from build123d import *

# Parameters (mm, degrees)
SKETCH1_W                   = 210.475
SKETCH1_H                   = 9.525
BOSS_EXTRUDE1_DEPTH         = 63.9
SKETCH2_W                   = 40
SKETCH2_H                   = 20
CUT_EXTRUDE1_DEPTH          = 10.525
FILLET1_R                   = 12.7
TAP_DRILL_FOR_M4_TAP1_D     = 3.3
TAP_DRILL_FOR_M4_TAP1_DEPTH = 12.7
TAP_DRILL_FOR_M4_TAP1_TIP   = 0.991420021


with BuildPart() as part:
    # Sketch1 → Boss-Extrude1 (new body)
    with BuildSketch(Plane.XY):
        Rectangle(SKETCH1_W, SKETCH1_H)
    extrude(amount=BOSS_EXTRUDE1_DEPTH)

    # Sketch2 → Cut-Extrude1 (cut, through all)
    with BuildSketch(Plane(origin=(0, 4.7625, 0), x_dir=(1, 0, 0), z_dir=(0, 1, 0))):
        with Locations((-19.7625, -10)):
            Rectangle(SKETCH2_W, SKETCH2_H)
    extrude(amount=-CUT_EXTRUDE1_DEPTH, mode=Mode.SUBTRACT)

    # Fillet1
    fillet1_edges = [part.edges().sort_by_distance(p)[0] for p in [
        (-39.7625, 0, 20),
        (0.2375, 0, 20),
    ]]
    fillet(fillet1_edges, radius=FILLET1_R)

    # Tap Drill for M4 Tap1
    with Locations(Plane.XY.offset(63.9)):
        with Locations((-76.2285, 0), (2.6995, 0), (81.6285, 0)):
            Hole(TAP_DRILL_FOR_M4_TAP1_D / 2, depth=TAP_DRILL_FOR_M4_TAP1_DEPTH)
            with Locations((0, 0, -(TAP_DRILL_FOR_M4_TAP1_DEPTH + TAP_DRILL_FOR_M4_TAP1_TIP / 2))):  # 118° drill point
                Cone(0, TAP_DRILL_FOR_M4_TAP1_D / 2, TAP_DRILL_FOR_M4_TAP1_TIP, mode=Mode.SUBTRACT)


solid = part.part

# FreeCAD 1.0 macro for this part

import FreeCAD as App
import Part
import Sketcher
from FreeCAD import Vector


def edges_at(feature, points):
    """Names of the edges that pass closest to the given points."""
    edges = feature.Shape.Edges
    near = lambda p: min(range(len(edges)), key=lambda i: edges[i].distToShape(Part.Vertex(*p))[0])
    return sorted({f"Edge{near(p) + 1}" for p in points})

doc = App.newDocument("Part")
body = doc.addObject("PartDesign::Body", "Body")

sketch1 = body.newObject("Sketcher::SketchObject", "Sketch")
sketch1.AttachmentSupport = (doc.getObject("XY_Plane"), [""])
sketch1.MapMode = "FlatFace"
sketch1.addGeometry(Part.LineSegment(Vector(-105, 5, 0), Vector(-105, -5, 0)), False)
sketch1.addGeometry(Part.LineSegment(Vector(-105, -5, 0), Vector(105, -5, 0)), False)
sketch1.addGeometry(Part.LineSegment(Vector(105, -5, 0), Vector(105, 5, 0)), False)
sketch1.addGeometry(Part.LineSegment(Vector(105, 5, 0), Vector(-105, 5, 0)), False)
sketch1.addConstraint(Sketcher.Constraint("Coincident", 0, 2, 1, 1))
sketch1.addConstraint(Sketcher.Constraint("Coincident", 1, 2, 2, 1))
sketch1.addConstraint(Sketcher.Constraint("Coincident", 2, 2, 3, 1))
sketch1.addConstraint(Sketcher.Constraint("Coincident", 3, 2, 0, 1))
sketch1.addConstraint(Sketcher.Constraint("Vertical", 0))
sketch1.addConstraint(Sketcher.Constraint("Horizontal", 1))
sketch1.addConstraint(Sketcher.Constraint("Vertical", 2))
sketch1.addConstraint(Sketcher.Constraint("Horizontal", 3))
sketch1.addConstraint(Sketcher.Constraint("Symmetric", 0, 2, 2, 2, -1, 1))
sketch1.addConstraint(Sketcher.Constraint("DistanceX", 1, 1, 1, 2, 210.475))
sketch1.addConstraint(Sketcher.Constraint("DistanceY", 0, 2, 0, 1, 9.525))
pad1 = body.newObject("PartDesign::Pad", "Pad")
pad1.Profile = sketch1
pad1.Length = 63.9

sketch2 = body.newObject("Sketcher::SketchObject", "Sketch001")
sketch2.AttachmentSupport = (doc.getObject("XZ_Plane"), [""])
sketch2.MapMode = "FlatFace"
sketch2.AttachmentOffset = App.Placement(Vector(0, 0, -4.7625), App.Rotation())
sketch2.addGeometry(Part.LineSegment(Vector(-40, 0, 0), Vector(-40, 20, 0)), False)
sketch2.addGeometry(Part.LineSegment(Vector(-40, 20, 0), Vector(0, 20, 0)), False)
sketch2.addGeometry(Part.LineSegment(Vector(0, 20, 0), Vector(0, 0, 0)), False)
sketch2.addGeometry(Part.LineSegment(Vector(0, 0, 0), Vector(-40, 0, 0)), False)
sketch2.addConstraint(Sketcher.Constraint("Coincident", 0, 2, 1, 1))
sketch2.addConstraint(Sketcher.Constraint("Coincident", 1, 2, 2, 1))
sketch2.addConstraint(Sketcher.Constraint("Coincident", 2, 2, 3, 1))
sketch2.addConstraint(Sketcher.Constraint("Coincident", 3, 2, 0, 1))
sketch2.addConstraint(Sketcher.Constraint("Vertical", 0))
sketch2.addConstraint(Sketcher.Constraint("Horizontal", 1))
sketch2.addConstraint(Sketcher.Constraint("Vertical", 2))
sketch2.addConstraint(Sketcher.Constraint("Horizontal", 3))
sketch2.addConstraint(Sketcher.Constraint("PointOnObject", 2, 2, -1))
sketch2.addConstraint(Sketcher.Constraint("DistanceX", 1, 1, 1, 2, 40.0))
sketch2.addConstraint(Sketcher.Constraint("DistanceY", 0, 1, 0, 2, 20.0))
sketch2.addConstraint(Sketcher.Constraint("DistanceX", 0, 2, -1, 1, 39.7625))
pocket1 = body.newObject("PartDesign::Pocket", "Pocket")
pocket1.Profile = sketch2
pocket1.Type = "ThroughAll"
pocket1.Reversed = True
doc.recompute()

fillet = body.newObject("PartDesign::Fillet", "Fillet")
fillet.Base = (pocket1, edges_at(pocket1, [(-39.763, 0, 20), (0.237, 0, 20)]))
fillet.Radius = 12.7

sketch3 = body.newObject("Sketcher::SketchObject", "Sketch002")
sketch3.AttachmentSupport = (doc.getObject("XY_Plane"), [""])
sketch3.MapMode = "FlatFace"
sketch3.AttachmentOffset = App.Placement(Vector(0, 0, 63.9), App.Rotation())
sketch3.addGeometry(Part.Circle(Vector(-76.2, 0, 0), Vector(0, 0, 1), 1.6), False)
sketch3.addGeometry(Part.Circle(Vector(2.7, 0, 0), Vector(0, 0, 1), 1.6), False)
sketch3.addGeometry(Part.Circle(Vector(81.6, 0, 0), Vector(0, 0, 1), 1.6), False)
sketch3.addConstraint(Sketcher.Constraint("Equal", 0, 1))
sketch3.addConstraint(Sketcher.Constraint("Equal", 1, 2))
sketch3.addConstraint(Sketcher.Constraint("PointOnObject", 0, 3, -1))
sketch3.addConstraint(Sketcher.Constraint("PointOnObject", 1, 3, -1))
sketch3.addConstraint(Sketcher.Constraint("PointOnObject", 2, 3, -1))
sketch3.addConstraint(Sketcher.Constraint("Diameter", 0, 3.3))
sketch3.addConstraint(Sketcher.Constraint("DistanceX", 0, 3, 1, 3, 78.928))
sketch3.addConstraint(Sketcher.Constraint("DistanceX", 1, 3, 2, 3, 78.929))
sketch3.addConstraint(Sketcher.Constraint("DistanceX", 0, 3, -1, 1, 76.2285))
doc.recompute()
hole = body.newObject("PartDesign::Hole", "Hole")
hole.Profile = sketch3
hole.ThreadType = "None"
hole.Diameter = 3.3
hole.DepthType = "Dimension"
hole.Depth = 12.7
hole.DrillPoint = "Angled"
hole.DrillPointAngle = 118

doc.recompute()
